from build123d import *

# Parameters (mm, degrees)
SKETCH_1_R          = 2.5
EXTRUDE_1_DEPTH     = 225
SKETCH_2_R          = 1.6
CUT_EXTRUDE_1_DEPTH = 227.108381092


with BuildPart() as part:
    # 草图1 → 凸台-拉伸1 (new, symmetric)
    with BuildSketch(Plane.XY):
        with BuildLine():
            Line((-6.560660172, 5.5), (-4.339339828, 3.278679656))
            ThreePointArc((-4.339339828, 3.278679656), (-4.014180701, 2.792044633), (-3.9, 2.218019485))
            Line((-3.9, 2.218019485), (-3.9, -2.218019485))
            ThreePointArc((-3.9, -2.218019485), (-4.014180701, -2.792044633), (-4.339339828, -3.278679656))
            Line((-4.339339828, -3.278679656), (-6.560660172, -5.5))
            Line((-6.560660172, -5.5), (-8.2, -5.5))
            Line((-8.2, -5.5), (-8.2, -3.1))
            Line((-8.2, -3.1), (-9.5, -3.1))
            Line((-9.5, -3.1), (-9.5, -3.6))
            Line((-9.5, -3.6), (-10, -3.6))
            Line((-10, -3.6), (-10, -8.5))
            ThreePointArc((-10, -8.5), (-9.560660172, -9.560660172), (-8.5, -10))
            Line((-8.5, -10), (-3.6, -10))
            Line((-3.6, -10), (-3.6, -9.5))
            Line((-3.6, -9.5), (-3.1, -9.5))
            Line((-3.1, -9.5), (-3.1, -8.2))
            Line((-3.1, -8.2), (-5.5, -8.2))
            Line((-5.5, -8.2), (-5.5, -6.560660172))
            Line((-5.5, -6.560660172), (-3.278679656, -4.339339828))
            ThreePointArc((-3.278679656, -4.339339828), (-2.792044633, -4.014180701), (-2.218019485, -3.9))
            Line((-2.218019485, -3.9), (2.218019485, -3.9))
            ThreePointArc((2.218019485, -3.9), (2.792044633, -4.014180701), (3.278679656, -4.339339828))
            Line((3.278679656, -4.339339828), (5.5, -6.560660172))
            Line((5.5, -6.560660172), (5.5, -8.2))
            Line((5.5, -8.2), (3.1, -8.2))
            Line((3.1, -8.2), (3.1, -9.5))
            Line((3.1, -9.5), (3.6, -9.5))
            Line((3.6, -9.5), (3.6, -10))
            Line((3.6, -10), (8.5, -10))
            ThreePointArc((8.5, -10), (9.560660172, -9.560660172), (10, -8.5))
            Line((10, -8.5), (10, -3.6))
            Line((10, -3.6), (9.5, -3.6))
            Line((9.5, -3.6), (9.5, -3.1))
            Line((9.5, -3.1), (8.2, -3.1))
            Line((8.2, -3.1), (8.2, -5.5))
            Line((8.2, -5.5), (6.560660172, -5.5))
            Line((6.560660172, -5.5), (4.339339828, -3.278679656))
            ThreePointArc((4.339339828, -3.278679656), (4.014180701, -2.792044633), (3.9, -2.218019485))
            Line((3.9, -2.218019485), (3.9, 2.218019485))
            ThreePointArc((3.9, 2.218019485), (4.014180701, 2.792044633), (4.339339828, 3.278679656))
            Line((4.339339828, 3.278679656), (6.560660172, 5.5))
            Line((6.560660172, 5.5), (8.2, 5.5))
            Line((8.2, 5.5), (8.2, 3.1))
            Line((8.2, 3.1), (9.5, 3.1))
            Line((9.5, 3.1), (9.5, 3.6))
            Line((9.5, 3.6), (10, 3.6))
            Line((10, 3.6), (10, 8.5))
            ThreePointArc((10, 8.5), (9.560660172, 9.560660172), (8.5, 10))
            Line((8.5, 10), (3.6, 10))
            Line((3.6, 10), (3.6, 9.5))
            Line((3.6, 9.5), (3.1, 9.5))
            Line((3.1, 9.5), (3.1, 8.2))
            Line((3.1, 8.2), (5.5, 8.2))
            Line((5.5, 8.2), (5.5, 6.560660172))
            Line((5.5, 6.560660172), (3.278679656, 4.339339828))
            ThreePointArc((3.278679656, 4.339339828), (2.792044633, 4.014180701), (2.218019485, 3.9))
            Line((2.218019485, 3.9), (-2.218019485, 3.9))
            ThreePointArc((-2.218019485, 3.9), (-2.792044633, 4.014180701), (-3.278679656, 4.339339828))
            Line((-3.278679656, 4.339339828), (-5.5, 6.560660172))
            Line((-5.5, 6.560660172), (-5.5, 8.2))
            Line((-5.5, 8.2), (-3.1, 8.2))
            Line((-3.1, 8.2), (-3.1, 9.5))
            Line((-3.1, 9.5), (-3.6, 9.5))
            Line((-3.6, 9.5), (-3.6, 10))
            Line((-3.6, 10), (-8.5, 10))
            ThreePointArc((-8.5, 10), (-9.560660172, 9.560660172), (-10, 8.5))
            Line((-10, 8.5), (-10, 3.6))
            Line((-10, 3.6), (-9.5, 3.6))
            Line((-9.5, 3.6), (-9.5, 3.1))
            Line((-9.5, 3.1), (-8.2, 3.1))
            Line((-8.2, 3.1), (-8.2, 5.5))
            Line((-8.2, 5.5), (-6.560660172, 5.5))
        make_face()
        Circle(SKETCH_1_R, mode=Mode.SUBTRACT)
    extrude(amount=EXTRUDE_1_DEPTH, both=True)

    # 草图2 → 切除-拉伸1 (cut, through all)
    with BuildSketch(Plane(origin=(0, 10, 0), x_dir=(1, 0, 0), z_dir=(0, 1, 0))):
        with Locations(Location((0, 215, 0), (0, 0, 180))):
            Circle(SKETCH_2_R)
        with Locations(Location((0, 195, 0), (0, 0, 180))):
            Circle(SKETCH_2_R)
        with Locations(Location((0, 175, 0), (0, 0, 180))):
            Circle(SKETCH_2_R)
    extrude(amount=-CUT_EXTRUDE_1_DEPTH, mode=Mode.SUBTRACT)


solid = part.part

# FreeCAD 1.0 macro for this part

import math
import FreeCAD as App
import Part
import Sketcher

doc = App.newDocument("Part")
params = doc.addObject("Spreadsheet::Sheet", "Params")
for row, (alias, value) in enumerate([
    ("sketch1_diameter", "5 mm"),
    ("sketch1_radius", "1.5 mm"),
    ("sketch1_width", "1.3 mm"),
    ("sketch1_width2", "0.5 mm"),
    ("sketch1_width3", "4.9 mm"),
    ("pad1_length", "450 mm"),
    ("sketch2_diameter", "3.2 mm"),
], start=1):
    params.set(f"A{row}", alias)
    params.set(f"B{row}", "=" + value)
    params.setAlias(f"B{row}", alias)

body = doc.addObject("PartDesign::Body", "Body")

sketch1 = body.newObject("Sketcher::SketchObject", "Sketch")
sketch1.AttachmentSupport = (doc.getObject("XY_Plane"), [""])
sketch1.MapMode = "FlatFace"
sketch1.addGeometry(Part.LineSegment(App.Vector(-6.6, 5.5, 0), App.Vector(-4.3, 3.3, 0)), False)
sketch1.addGeometry(Part.ArcOfCircle(Part.Circle(App.Vector(-5.4, 2.2, 0), App.Vector(0, 0, 1), 1.5), math.radians(0), math.radians(45)), False)
sketch1.addGeometry(Part.LineSegment(App.Vector(-3.9, 2.2, 0), App.Vector(-3.9, -2.2, 0)), False)
sketch1.addGeometry(Part.ArcOfCircle(Part.Circle(App.Vector(-5.4, -2.2, 0), App.Vector(0, 0, 1), 1.5), math.radians(-45), math.radians(0)), False)
sketch1.addGeometry(Part.LineSegment(App.Vector(-4.3, -3.3, 0), App.Vector(-6.6, -5.5, 0)), False)
sketch1.addGeometry(Part.LineSegment(App.Vector(-6.6, -5.5, 0), App.Vector(-8.2, -5.5, 0)), False)
sketch1.addGeometry(Part.LineSegment(App.Vector(-8.2, -5.5, 0), App.Vector(-8.2, -3.1, 0)), False)
sketch1.addGeometry(Part.LineSegment(App.Vector(-8.2, -3.1, 0), App.Vector(-9.5, -3.1, 0)), False)
sketch1.addGeometry(Part.LineSegment(App.Vector(-9.5, -3.1, 0), App.Vector(-9.5, -3.6, 0)), False)
sketch1.addGeometry(Part.LineSegment(App.Vector(-9.5, -3.6, 0), App.Vector(-10, -3.6, 0)), False)
sketch1.addGeometry(Part.LineSegment(App.Vector(-10, -3.6, 0), App.Vector(-10, -8.5, 0)), False)
sketch1.addGeometry(Part.ArcOfCircle(Part.Circle(App.Vector(-8.5, -8.5, 0), App.Vector(0, 0, 1), 1.5), math.radians(180), math.radians(270)), False)
sketch1.addGeometry(Part.LineSegment(App.Vector(-8.5, -10, 0), App.Vector(-3.6, -10, 0)), False)
sketch1.addGeometry(Part.LineSegment(App.Vector(-3.6, -10, 0), App.Vector(-3.6, -9.5, 0)), False)
sketch1.addGeometry(Part.LineSegment(App.Vector(-3.6, -9.5, 0), App.Vector(-3.1, -9.5, 0)), False)
sketch1.addGeometry(Part.LineSegment(App.Vector(-3.1, -9.5, 0), App.Vector(-3.1, -8.2, 0)), False)
sketch1.addGeometry(Part.LineSegment(App.Vector(-3.1, -8.2, 0), App.Vector(-5.5, -8.2, 0)), False)
sketch1.addGeometry(Part.LineSegment(App.Vector(-5.5, -8.2, 0), App.Vector(-5.5, -6.6, 0)), False)
sketch1.addGeometry(Part.LineSegment(App.Vector(-5.5, -6.6, 0), App.Vector(-3.3, -4.3, 0)), False)
sketch1.addGeometry(Part.ArcOfCircle(Part.Circle(App.Vector(-2.2, -5.4, 0), App.Vector(0, 0, 1), 1.5), math.radians(90), math.radians(135)), False)
sketch1.addGeometry(Part.LineSegment(App.Vector(-2.2, -3.9, 0), App.Vector(2.2, -3.9, 0)), False)
sketch1.addGeometry(Part.ArcOfCircle(Part.Circle(App.Vector(2.2, -5.4, 0), App.Vector(0, 0, 1), 1.5), math.radians(45), math.radians(90)), False)
sketch1.addGeometry(Part.LineSegment(App.Vector(3.3, -4.3, 0), App.Vector(5.5, -6.6, 0)), False)
sketch1.addGeometry(Part.LineSegment(App.Vector(5.5, -6.6, 0), App.Vector(5.5, -8.2, 0)), False)
sketch1.addGeometry(Part.LineSegment(App.Vector(5.5, -8.2, 0), App.Vector(3.1, -8.2, 0)), False)
sketch1.addGeometry(Part.LineSegment(App.Vector(3.1, -8.2, 0), App.Vector(3.1, -9.5, 0)), False)
sketch1.addGeometry(Part.LineSegment(App.Vector(3.1, -9.5, 0), App.Vector(3.6, -9.5, 0)), False)
sketch1.addGeometry(Part.LineSegment(App.Vector(3.6, -9.5, 0), App.Vector(3.6, -10, 0)), False)
sketch1.addGeometry(Part.LineSegment(App.Vector(3.6, -10, 0), App.Vector(8.5, -10, 0)), False)
sketch1.addGeometry(Part.ArcOfCircle(Part.Circle(App.Vector(8.5, -8.5, 0), App.Vector(0, 0, 1), 1.5), math.radians(-90), math.radians(0)), False)
sketch1.addGeometry(Part.LineSegment(App.Vector(10, -8.5, 0), App.Vector(10, -3.6, 0)), False)
sketch1.addGeometry(Part.LineSegment(App.Vector(10, -3.6, 0), App.Vector(9.5, -3.6, 0)), False)
sketch1.addGeometry(Part.LineSegment(App.Vector(9.5, -3.6, 0), App.Vector(9.5, -3.1, 0)), False)
sketch1.addGeometry(Part.LineSegment(App.Vector(9.5, -3.1, 0), App.Vector(8.2, -3.1, 0)), False)
sketch1.addGeometry(Part.LineSegment(App.Vector(8.2, -3.1, 0), App.Vector(8.2, -5.5, 0)), False)
sketch1.addGeometry(Part.LineSegment(App.Vector(8.2, -5.5, 0), App.Vector(6.6, -5.5, 0)), False)
sketch1.addGeometry(Part.LineSegment(App.Vector(6.6, -5.5, 0), App.Vector(4.3, -3.3, 0)), False)
sketch1.addGeometry(Part.ArcOfCircle(Part.Circle(App.Vector(5.4, -2.2, 0), App.Vector(0, 0, 1), 1.5), math.radians(180), math.radians(225)), False)
sketch1.addGeometry(Part.LineSegment(App.Vector(3.9, -2.2, 0), App.Vector(3.9, 2.2, 0)), False)
sketch1.addGeometry(Part.ArcOfCircle(Part.Circle(App.Vector(5.4, 2.2, 0), App.Vector(0, 0, 1), 1.5), math.radians(135), math.radians(180)), False)
sketch1.addGeometry(Part.LineSegment(App.Vector(4.3, 3.3, 0), App.Vector(6.6, 5.5, 0)), False)
sketch1.addGeometry(Part.LineSegment(App.Vector(6.6, 5.5, 0), App.Vector(8.2, 5.5, 0)), False)
sketch1.addGeometry(Part.LineSegment(App.Vector(8.2, 5.5, 0), App.Vector(8.2, 3.1, 0)), False)
sketch1.addGeometry(Part.LineSegment(App.Vector(8.2, 3.1, 0), App.Vector(9.5, 3.1, 0)), False)
sketch1.addGeometry(Part.LineSegment(App.Vector(9.5, 3.1, 0), App.Vector(9.5, 3.6, 0)), False)
sketch1.addGeometry(Part.LineSegment(App.Vector(9.5, 3.6, 0), App.Vector(10, 3.6, 0)), False)
sketch1.addGeometry(Part.LineSegment(App.Vector(10, 3.6, 0), App.Vector(10, 8.5, 0)), False)
sketch1.addGeometry(Part.ArcOfCircle(Part.Circle(App.Vector(8.5, 8.5, 0), App.Vector(0, 0, 1), 1.5), math.radians(0), math.radians(90)), False)
sketch1.addGeometry(Part.LineSegment(App.Vector(8.5, 10, 0), App.Vector(3.6, 10, 0)), False)
sketch1.addGeometry(Part.LineSegment(App.Vector(3.6, 10, 0), App.Vector(3.6, 9.5, 0)), False)
sketch1.addGeometry(Part.LineSegment(App.Vector(3.6, 9.5, 0), App.Vector(3.1, 9.5, 0)), False)
sketch1.addGeometry(Part.LineSegment(App.Vector(3.1, 9.5, 0), App.Vector(3.1, 8.2, 0)), False)
sketch1.addGeometry(Part.LineSegment(App.Vector(3.1, 8.2, 0), App.Vector(5.5, 8.2, 0)), False)
sketch1.addGeometry(Part.LineSegment(App.Vector(5.5, 8.2, 0), App.Vector(5.5, 6.6, 0)), False)
sketch1.addGeometry(Part.LineSegment(App.Vector(5.5, 6.6, 0), App.Vector(3.3, 4.3, 0)), False)
sketch1.addGeometry(Part.ArcOfCircle(Part.Circle(App.Vector(2.2, 5.4, 0), App.Vector(0, 0, 1), 1.5), math.radians(-90), math.radians(-45)), False)
sketch1.addGeometry(Part.LineSegment(App.Vector(2.2, 3.9, 0), App.Vector(-2.2, 3.9, 0)), False)
sketch1.addGeometry(Part.ArcOfCircle(Part.Circle(App.Vector(-2.2, 5.4, 0), App.Vector(0, 0, 1), 1.5), math.radians(-135), math.radians(-90)), False)
sketch1.addGeometry(Part.LineSegment(App.Vector(-3.3, 4.3, 0), App.Vector(-5.5, 6.6, 0)), False)
sketch1.addGeometry(Part.LineSegment(App.Vector(-5.5, 6.6, 0), App.Vector(-5.5, 8.2, 0)), False)
sketch1.addGeometry(Part.LineSegment(App.Vector(-5.5, 8.2, 0), App.Vector(-3.1, 8.2, 0)), False)
sketch1.addGeometry(Part.LineSegment(App.Vector(-3.1, 8.2, 0), App.Vector(-3.1, 9.5, 0)), False)
sketch1.addGeometry(Part.LineSegment(App.Vector(-3.1, 9.5, 0), App.Vector(-3.6, 9.5, 0)), False)
sketch1.addGeometry(Part.LineSegment(App.Vector(-3.6, 9.5, 0), App.Vector(-3.6, 10, 0)), False)
sketch1.addGeometry(Part.LineSegment(App.Vector(-3.6, 10, 0), App.Vector(-8.5, 10, 0)), False)
sketch1.addGeometry(Part.ArcOfCircle(Part.Circle(App.Vector(-8.5, 8.5, 0), App.Vector(0, 0, 1), 1.5), math.radians(90), math.radians(180)), False)
sketch1.addGeometry(Part.LineSegment(App.Vector(-10, 8.5, 0), App.Vector(-10, 3.6, 0)), False)
sketch1.addGeometry(Part.LineSegment(App.Vector(-10, 3.6, 0), App.Vector(-9.5, 3.6, 0)), False)
sketch1.addGeometry(Part.LineSegment(App.Vector(-9.5, 3.6, 0), App.Vector(-9.5, 3.1, 0)), False)
sketch1.addGeometry(Part.LineSegment(App.Vector(-9.5, 3.1, 0), App.Vector(-8.2, 3.1, 0)), False)
sketch1.addGeometry(Part.LineSegment(App.Vector(-8.2, 3.1, 0), App.Vector(-8.2, 5.5, 0)), False)
sketch1.addGeometry(Part.LineSegment(App.Vector(-8.2, 5.5, 0), App.Vector(-6.6, 5.5, 0)), False)
sketch1.addGeometry(Part.Circle(App.Vector(0, 0, 0), App.Vector(0, 0, 1), 2.5), False)
sketch1.addConstraint(Sketcher.Constraint("Tangent", 0, 2, 1, 2))
sketch1.addConstraint(Sketcher.Constraint("Tangent", 1, 1, 2, 1))
sketch1.addConstraint(Sketcher.Constraint("Tangent", 2, 2, 3, 2))
sketch1.addConstraint(Sketcher.Constraint("Tangent", 3, 1, 4, 1))
sketch1.addConstraint(Sketcher.Constraint("Coincident", 4, 2, 5, 1))
sketch1.addConstraint(Sketcher.Constraint("Coincident", 5, 2, 6, 1))
sketch1.addConstraint(Sketcher.Constraint("Coincident", 6, 2, 7, 1))
sketch1.addConstraint(Sketcher.Constraint("Coincident", 7, 2, 8, 1))
sketch1.addConstraint(Sketcher.Constraint("Coincident", 8, 2, 9, 1))
sketch1.addConstraint(Sketcher.Constraint("Coincident", 9, 2, 10, 1))
sketch1.addConstraint(Sketcher.Constraint("Tangent", 10, 2, 11, 1))
sketch1.addConstraint(Sketcher.Constraint("Tangent", 11, 2, 12, 1))
sketch1.addConstraint(Sketcher.Constraint("Coincident", 12, 2, 13, 1))
sketch1.addConstraint(Sketcher.Constraint("Coincident", 13, 2, 14, 1))
sketch1.addConstraint(Sketcher.Constraint("Coincident", 14, 2, 15, 1))
sketch1.addConstraint(Sketcher.Constraint("Coincident", 15, 2, 16, 1))
sketch1.addConstraint(Sketcher.Constraint("Coincident", 16, 2, 17, 1))
sketch1.addConstraint(Sketcher.Constraint("Coincident", 17, 2, 18, 1))
sketch1.addConstraint(Sketcher.Constraint("Tangent", 18, 2, 19, 2))
sketch1.addConstraint(Sketcher.Constraint("Tangent", 19, 1, 20, 1))
sketch1.addConstraint(Sketcher.Constraint("Tangent", 20, 2, 21, 2))
sketch1.addConstraint(Sketcher.Constraint("Tangent", 21, 1, 22, 1))
sketch1.addConstraint(Sketcher.Constraint("Coincident", 22, 2, 23, 1))
sketch1.addConstraint(Sketcher.Constraint("Coincident", 23, 2, 24, 1))
sketch1.addConstraint(Sketcher.Constraint("Coincident", 24, 2, 25, 1))
sketch1.addConstraint(Sketcher.Constraint("Coincident", 25, 2, 26, 1))
sketch1.addConstraint(Sketcher.Constraint("Coincident", 26, 2, 27, 1))
sketch1.addConstraint(Sketcher.Constraint("Coincident", 27, 2, 28, 1))
sketch1.addConstraint(Sketcher.Constraint("Tangent", 28, 2, 29, 1))
sketch1.addConstraint(Sketcher.Constraint("Tangent", 29, 2, 30, 1))
sketch1.addConstraint(Sketcher.Constraint("Coincident", 30, 2, 31, 1))
sketch1.addConstraint(Sketcher.Constraint("Coincident", 31, 2, 32, 1))
sketch1.addConstraint(Sketcher.Constraint("Coincident", 32, 2, 33, 1))
sketch1.addConstraint(Sketcher.Constraint("Coincident", 33, 2, 34, 1))
sketch1.addConstraint(Sketcher.Constraint("Coincident", 34, 2, 35, 1))
sketch1.addConstraint(Sketcher.Constraint("Coincident", 35, 2, 36, 1))
sketch1.addConstraint(Sketcher.Constraint("Tangent", 36, 2, 37, 2))
sketch1.addConstraint(Sketcher.Constraint("Tangent", 37, 1, 38, 1))
sketch1.addConstraint(Sketcher.Constraint("Tangent", 38, 2, 39, 2))
sketch1.addConstraint(Sketcher.Constraint("Tangent", 39, 1, 40, 1))
sketch1.addConstraint(Sketcher.Constraint("Coincident", 40, 2, 41, 1))
sketch1.addConstraint(Sketcher.Constraint("Coincident", 41, 2, 42, 1))
sketch1.addConstraint(Sketcher.Constraint("Coincident", 42, 2, 43, 1))
sketch1.addConstraint(Sketcher.Constraint("Coincident", 43, 2, 44, 1))
sketch1.addConstraint(Sketcher.Constraint("Coincident", 44, 2, 45, 1))
sketch1.addConstraint(Sketcher.Constraint("Coincident", 45, 2, 46, 1))
sketch1.addConstraint(Sketcher.Constraint("Tangent", 46, 2, 47, 1))
sketch1.addConstraint(Sketcher.Constraint("Tangent", 47, 2, 48, 1))
sketch1.addConstraint(Sketcher.Constraint("Coincident", 48, 2, 49, 1))
sketch1.addConstraint(Sketcher.Constraint("Coincident", 49, 2, 50, 1))
sketch1.addConstraint(Sketcher.Constraint("Coincident", 50, 2, 51, 1))
sketch1.addConstraint(Sketcher.Constraint("Coincident", 51, 2, 52, 1))
sketch1.addConstraint(Sketcher.Constraint("Coincident", 52, 2, 53, 1))
sketch1.addConstraint(Sketcher.Constraint("Coincident", 53, 2, 54, 1))
sketch1.addConstraint(Sketcher.Constraint("Tangent", 54, 2, 55, 2))
sketch1.addConstraint(Sketcher.Constraint("Tangent", 55, 1, 56, 1))
sketch1.addConstraint(Sketcher.Constraint("Tangent", 56, 2, 57, 2))
sketch1.addConstraint(Sketcher.Constraint("Tangent", 57, 1, 58, 1))
sketch1.addConstraint(Sketcher.Constraint("Coincident", 58, 2, 59, 1))
sketch1.addConstraint(Sketcher.Constraint("Coincident", 59, 2, 60, 1))
sketch1.addConstraint(Sketcher.Constraint("Coincident", 60, 2, 61, 1))
sketch1.addConstraint(Sketcher.Constraint("Coincident", 61, 2, 62, 1))
sketch1.addConstraint(Sketcher.Constraint("Coincident", 62, 2, 63, 1))
sketch1.addConstraint(Sketcher.Constraint("Coincident", 63, 2, 64, 1))
sketch1.addConstraint(Sketcher.Constraint("Tangent", 64, 2, 65, 1))
sketch1.addConstraint(Sketcher.Constraint("Tangent", 65, 2, 66, 1))
sketch1.addConstraint(Sketcher.Constraint("Coincident", 66, 2, 67, 1))
sketch1.addConstraint(Sketcher.Constraint("Coincident", 67, 2, 68, 1))
sketch1.addConstraint(Sketcher.Constraint("Coincident", 68, 2, 69, 1))
sketch1.addConstraint(Sketcher.Constraint("Coincident", 69, 2, 70, 1))
sketch1.addConstraint(Sketcher.Constraint("Coincident", 70, 2, 71, 1))
sketch1.addConstraint(Sketcher.Constraint("Coincident", 71, 2, 0, 1))
sketch1.addConstraint(Sketcher.Constraint("Vertical", 2))
sketch1.addConstraint(Sketcher.Constraint("Horizontal", 5))
sketch1.addConstraint(Sketcher.Constraint("Vertical", 6))
sketch1.addConstraint(Sketcher.Constraint("Horizontal", 7))
sketch1.addConstraint(Sketcher.Constraint("Vertical", 8))
sketch1.addConstraint(Sketcher.Constraint("Horizontal", 9))
sketch1.addConstraint(Sketcher.Constraint("Vertical", 10))
sketch1.addConstraint(Sketcher.Constraint("Horizontal", 12))
sketch1.addConstraint(Sketcher.Constraint("Vertical", 13))
sketch1.addConstraint(Sketcher.Constraint("Horizontal", 14))
sketch1.addConstraint(Sketcher.Constraint("Vertical", 15))
sketch1.addConstraint(Sketcher.Constraint("Horizontal", 16))
sketch1.addConstraint(Sketcher.Constraint("Vertical", 17))
sketch1.addConstraint(Sketcher.Constraint("Horizontal", 20))
sketch1.addConstraint(Sketcher.Constraint("Vertical", 23))
sketch1.addConstraint(Sketcher.Constraint("Horizontal", 24))
sketch1.addConstraint(Sketcher.Constraint("Vertical", 25))
sketch1.addConstraint(Sketcher.Constraint("Horizontal", 26))
sketch1.addConstraint(Sketcher.Constraint("Vertical", 27))
sketch1.addConstraint(Sketcher.Constraint("Horizontal", 28))
sketch1.addConstraint(Sketcher.Constraint("Vertical", 30))
sketch1.addConstraint(Sketcher.Constraint("Horizontal", 31))
sketch1.addConstraint(Sketcher.Constraint("Vertical", 32))
sketch1.addConstraint(Sketcher.Constraint("Horizontal", 33))
sketch1.addConstraint(Sketcher.Constraint("Vertical", 34))
sketch1.addConstraint(Sketcher.Constraint("Horizontal", 35))
sketch1.addConstraint(Sketcher.Constraint("Vertical", 38))
sketch1.addConstraint(Sketcher.Constraint("Horizontal", 41))
sketch1.addConstraint(Sketcher.Constraint("Vertical", 42))
sketch1.addConstraint(Sketcher.Constraint("Horizontal", 43))
sketch1.addConstraint(Sketcher.Constraint("Vertical", 44))
sketch1.addConstraint(Sketcher.Constraint("Horizontal", 45))
sketch1.addConstraint(Sketcher.Constraint("Vertical", 46))
sketch1.addConstraint(Sketcher.Constraint("Horizontal", 48))
sketch1.addConstraint(Sketcher.Constraint("Vertical", 49))
sketch1.addConstraint(Sketcher.Constraint("Horizontal", 50))
sketch1.addConstraint(Sketcher.Constraint("Vertical", 51))
sketch1.addConstraint(Sketcher.Constraint("Horizontal", 52))
sketch1.addConstraint(Sketcher.Constraint("Vertical", 53))
sketch1.addConstraint(Sketcher.Constraint("Horizontal", 56))
sketch1.addConstraint(Sketcher.Constraint("Vertical", 59))
sketch1.addConstraint(Sketcher.Constraint("Horizontal", 60))
sketch1.addConstraint(Sketcher.Constraint("Vertical", 61))
sketch1.addConstraint(Sketcher.Constraint("Horizontal", 62))
sketch1.addConstraint(Sketcher.Constraint("Vertical", 63))
sketch1.addConstraint(Sketcher.Constraint("Horizontal", 64))
sketch1.addConstraint(Sketcher.Constraint("Vertical", 66))
sketch1.addConstraint(Sketcher.Constraint("Horizontal", 67))
sketch1.addConstraint(Sketcher.Constraint("Vertical", 68))
sketch1.addConstraint(Sketcher.Constraint("Horizontal", 69))
sketch1.addConstraint(Sketcher.Constraint("Vertical", 70))
sketch1.addConstraint(Sketcher.Constraint("Horizontal", 71))
sketch1.addConstraint(Sketcher.Constraint("Coincident", 72, 3, -1, 1))
sketch1.addConstraint(Sketcher.Constraint("Equal", 1, 3))
sketch1.addConstraint(Sketcher.Constraint("Equal", 3, 11))
sketch1.addConstraint(Sketcher.Constraint("Equal", 11, 19))
sketch1.addConstraint(Sketcher.Constraint("Equal", 19, 21))
sketch1.addConstraint(Sketcher.Constraint("Equal", 21, 29))
sketch1.addConstraint(Sketcher.Constraint("Equal", 29, 37))
sketch1.addConstraint(Sketcher.Constraint("Equal", 37, 39))
sketch1.addConstraint(Sketcher.Constraint("Equal", 39, 47))
sketch1.addConstraint(Sketcher.Constraint("Equal", 47, 55))
sketch1.addConstraint(Sketcher.Constraint("Equal", 55, 57))
sketch1.addConstraint(Sketcher.Constraint("Equal", 57, 65))
sketch1.addConstraint(Sketcher.Constraint("Symmetric", 1, 3, 37, 3, -1, 1))
sketch1.addConstraint(Sketcher.Constraint("Symmetric", 11, 3, 47, 3, -1, 1))
sketch1.addConstraint(Sketcher.Constraint("Symmetric", 19, 3, 55, 3, -1, 1))
sketch1.addConstraint(Sketcher.Constraint("Symmetric", 29, 3, 65, 3, -1, 1))
sketch1.addConstraint(Sketcher.Constraint("Symmetric", 3, 1, 39, 1, -1, 1))
sketch1.addConstraint(Sketcher.Constraint("Symmetric", 5, 2, 41, 2, -1, 1))
sketch1.addConstraint(Sketcher.Constraint("Symmetric", 7, 2, 43, 2, -1, 1))
sketch1.addConstraint(Sketcher.Constraint("Symmetric", 13, 2, 49, 2, -1, 1))
sketch1.addConstraint(Sketcher.Constraint("Symmetric", 15, 2, 51, 2, -1, 1))
sketch1.addConstraint(Sketcher.Constraint("Symmetric", 17, 2, 53, 2, -1, 1))
sketch1.addConstraint(Sketcher.Constraint("Symmetric", 21, 1, 57, 1, -1, 1))
sketch1.addConstraint(Sketcher.Constraint("Symmetric", 23, 2, 59, 2, -1, 1))
sketch1.addConstraint(Sketcher.Constraint("Symmetric", 25, 2, 61, 2, -1, 1))
sketch1.addConstraint(Sketcher.Constraint("Symmetric", 31, 2, 67, 2, -1, 1))
sketch1.addConstraint(Sketcher.Constraint("Symmetric", 33, 2, 69, 2, -1, 1))
sketch1.addConstraint(Sketcher.Constraint("Symmetric", 35, 2, 71, 2, -1, 1))
sketch1.addConstraint(Sketcher.Constraint("Symmetric", 11, 3, 29, 3, -2))
sketch1.addConstraint(Sketcher.Constraint("Symmetric", 18, 2, 21, 1, -2))
sketch1.addConstraint(Sketcher.Constraint("Symmetric", 16, 2, 23, 2, -2))
sketch1.addConstraint(Sketcher.Constraint("Symmetric", 14, 2, 25, 2, -2))
sketch1.addConstraint(Sketcher.Constraint("Symmetric", 8, 2, 31, 2, -2))
sketch1.addConstraint(Sketcher.Constraint("Symmetric", 6, 2, 33, 2, -2))
sketch1.addConstraint(Sketcher.Constraint("Symmetric", 4, 2, 35, 2, -2))
sketch1.addConstraint(Sketcher.Constraint("Perpendicular", 0, 4))
sketch1.addConstraint(Sketcher.Constraint("Parallel", 4, 18))
sketch1.addConstraint(Sketcher.Constraint("Perpendicular", 18, 22))
sketch1.addConstraint(Sketcher.Constraint("Horizontal", 45, 2, 66, 2))
sketch1.addConstraint(Sketcher.Constraint("Vertical", 27, 2, 48, 2))
sketch1.addConstraint(Sketcher.Constraint("Vertical", 13, 2, 62, 2))
sketch1.addConstraint(Sketcher.Constraint("Equal", 9, 14))
sketch1.addConstraint(Sketcher.Constraint("Equal", 56, 2))
sketch1.addConstraint(Sketcher.Constraint("Equal", 60, 6))
sketch1.addConstraint(Sketcher.Constraint("Equal", 67, 8))
sketch1.addConstraint(Sketcher.Constraint("Equal", 64, 10))
sketch1.addConstraint(Sketcher.Constraint("Equal", 8, 13))
sketch1.addConstraint(Sketcher.Constraint("Equal", 69, 15))
sketch1.addConstraint(Sketcher.Constraint("Equal", 71, 17))
sketch1.addConstraint(Sketcher.Constraint("Equal", 4, 18))
sketch1.addConstraint(Sketcher.Constraint("Diameter", 72, 5.0))
sketch1.addConstraint(Sketcher.Constraint("Radius", 1, 1.5))
sketch1.addConstraint(Sketcher.Constraint("DistanceX", 7, 2, 7, 1, 1.3))
sketch1.addConstraint(Sketcher.Constraint("DistanceX", 9, 2, 9, 1, 0.5))
sketch1.addConstraint(Sketcher.Constraint("DistanceX", 12, 1, 12, 2, 4.9))
sketch1.addConstraint(Sketcher.Constraint("DistanceX", 16, 2, 16, 1, 2.4))
sketch1.addConstraint(Sketcher.Constraint("DistanceX", 9, 2, -1, 1, 10.0))
sketch1.addConstraint(Sketcher.Constraint("DistanceX", 1, 3, -1, 1, 5.4))
sketch1.addConstraint(Sketcher.Constraint("DistanceX", 5, 2, 5, 1, 1.63934))
sketch1.setExpression("Constraints[174]", "Params.sketch1_diameter")
sketch1.setExpression("Constraints[175]", "Params.sketch1_radius")
sketch1.setExpression("Constraints[176]", "Params.sketch1_width")
sketch1.setExpression("Constraints[177]", "Params.sketch1_width2")
sketch1.setExpression("Constraints[178]", "Params.sketch1_width3")
pad1 = body.newObject("PartDesign::Pad", "Pad")
pad1.Profile = sketch1
pad1.setExpression("Length", "Params.pad1_length")
pad1.Midplane = True

sketch2 = body.newObject("Sketcher::SketchObject", "Sketch001")
sketch2.AttachmentSupport = (doc.getObject("XZ_Plane"), [""])
sketch2.MapMode = "FlatFace"
sketch2.AttachmentOffset = App.Placement(App.Vector(0, 0, -10), App.Rotation())
sketch2.addGeometry(Part.Circle(App.Vector(0, -215, 0), App.Vector(0, 0, 1), 1.6), False)
sketch2.addGeometry(Part.Circle(App.Vector(0, -195, 0), App.Vector(0, 0, 1), 1.6), False)
sketch2.addGeometry(Part.Circle(App.Vector(0, -175, 0), App.Vector(0, 0, 1), 1.6), False)
sketch2.addConstraint(Sketcher.Constraint("Equal", 0, 1))
sketch2.addConstraint(Sketcher.Constraint("Equal", 1, 2))
sketch2.addConstraint(Sketcher.Constraint("PointOnObject", 0, 3, -2))
sketch2.addConstraint(Sketcher.Constraint("PointOnObject", 1, 3, -2))
sketch2.addConstraint(Sketcher.Constraint("PointOnObject", 2, 3, -2))
sketch2.addConstraint(Sketcher.Constraint("Diameter", 0, 3.2))
sketch2.addConstraint(Sketcher.Constraint("DistanceY", 0, 3, -1, 1, 215.0))
sketch2.addConstraint(Sketcher.Constraint("DistanceY", 1, 3, -1, 1, 195.0))
sketch2.addConstraint(Sketcher.Constraint("DistanceY", 2, 3, -1, 1, 175.0))
sketch2.setExpression("Constraints[5]", "Params.sketch2_diameter")
pocket1 = body.newObject("PartDesign::Pocket", "Pocket")
pocket1.Profile = sketch2
pocket1.Type = "ThroughAll"
pocket1.Reversed = True

doc.recompute()
